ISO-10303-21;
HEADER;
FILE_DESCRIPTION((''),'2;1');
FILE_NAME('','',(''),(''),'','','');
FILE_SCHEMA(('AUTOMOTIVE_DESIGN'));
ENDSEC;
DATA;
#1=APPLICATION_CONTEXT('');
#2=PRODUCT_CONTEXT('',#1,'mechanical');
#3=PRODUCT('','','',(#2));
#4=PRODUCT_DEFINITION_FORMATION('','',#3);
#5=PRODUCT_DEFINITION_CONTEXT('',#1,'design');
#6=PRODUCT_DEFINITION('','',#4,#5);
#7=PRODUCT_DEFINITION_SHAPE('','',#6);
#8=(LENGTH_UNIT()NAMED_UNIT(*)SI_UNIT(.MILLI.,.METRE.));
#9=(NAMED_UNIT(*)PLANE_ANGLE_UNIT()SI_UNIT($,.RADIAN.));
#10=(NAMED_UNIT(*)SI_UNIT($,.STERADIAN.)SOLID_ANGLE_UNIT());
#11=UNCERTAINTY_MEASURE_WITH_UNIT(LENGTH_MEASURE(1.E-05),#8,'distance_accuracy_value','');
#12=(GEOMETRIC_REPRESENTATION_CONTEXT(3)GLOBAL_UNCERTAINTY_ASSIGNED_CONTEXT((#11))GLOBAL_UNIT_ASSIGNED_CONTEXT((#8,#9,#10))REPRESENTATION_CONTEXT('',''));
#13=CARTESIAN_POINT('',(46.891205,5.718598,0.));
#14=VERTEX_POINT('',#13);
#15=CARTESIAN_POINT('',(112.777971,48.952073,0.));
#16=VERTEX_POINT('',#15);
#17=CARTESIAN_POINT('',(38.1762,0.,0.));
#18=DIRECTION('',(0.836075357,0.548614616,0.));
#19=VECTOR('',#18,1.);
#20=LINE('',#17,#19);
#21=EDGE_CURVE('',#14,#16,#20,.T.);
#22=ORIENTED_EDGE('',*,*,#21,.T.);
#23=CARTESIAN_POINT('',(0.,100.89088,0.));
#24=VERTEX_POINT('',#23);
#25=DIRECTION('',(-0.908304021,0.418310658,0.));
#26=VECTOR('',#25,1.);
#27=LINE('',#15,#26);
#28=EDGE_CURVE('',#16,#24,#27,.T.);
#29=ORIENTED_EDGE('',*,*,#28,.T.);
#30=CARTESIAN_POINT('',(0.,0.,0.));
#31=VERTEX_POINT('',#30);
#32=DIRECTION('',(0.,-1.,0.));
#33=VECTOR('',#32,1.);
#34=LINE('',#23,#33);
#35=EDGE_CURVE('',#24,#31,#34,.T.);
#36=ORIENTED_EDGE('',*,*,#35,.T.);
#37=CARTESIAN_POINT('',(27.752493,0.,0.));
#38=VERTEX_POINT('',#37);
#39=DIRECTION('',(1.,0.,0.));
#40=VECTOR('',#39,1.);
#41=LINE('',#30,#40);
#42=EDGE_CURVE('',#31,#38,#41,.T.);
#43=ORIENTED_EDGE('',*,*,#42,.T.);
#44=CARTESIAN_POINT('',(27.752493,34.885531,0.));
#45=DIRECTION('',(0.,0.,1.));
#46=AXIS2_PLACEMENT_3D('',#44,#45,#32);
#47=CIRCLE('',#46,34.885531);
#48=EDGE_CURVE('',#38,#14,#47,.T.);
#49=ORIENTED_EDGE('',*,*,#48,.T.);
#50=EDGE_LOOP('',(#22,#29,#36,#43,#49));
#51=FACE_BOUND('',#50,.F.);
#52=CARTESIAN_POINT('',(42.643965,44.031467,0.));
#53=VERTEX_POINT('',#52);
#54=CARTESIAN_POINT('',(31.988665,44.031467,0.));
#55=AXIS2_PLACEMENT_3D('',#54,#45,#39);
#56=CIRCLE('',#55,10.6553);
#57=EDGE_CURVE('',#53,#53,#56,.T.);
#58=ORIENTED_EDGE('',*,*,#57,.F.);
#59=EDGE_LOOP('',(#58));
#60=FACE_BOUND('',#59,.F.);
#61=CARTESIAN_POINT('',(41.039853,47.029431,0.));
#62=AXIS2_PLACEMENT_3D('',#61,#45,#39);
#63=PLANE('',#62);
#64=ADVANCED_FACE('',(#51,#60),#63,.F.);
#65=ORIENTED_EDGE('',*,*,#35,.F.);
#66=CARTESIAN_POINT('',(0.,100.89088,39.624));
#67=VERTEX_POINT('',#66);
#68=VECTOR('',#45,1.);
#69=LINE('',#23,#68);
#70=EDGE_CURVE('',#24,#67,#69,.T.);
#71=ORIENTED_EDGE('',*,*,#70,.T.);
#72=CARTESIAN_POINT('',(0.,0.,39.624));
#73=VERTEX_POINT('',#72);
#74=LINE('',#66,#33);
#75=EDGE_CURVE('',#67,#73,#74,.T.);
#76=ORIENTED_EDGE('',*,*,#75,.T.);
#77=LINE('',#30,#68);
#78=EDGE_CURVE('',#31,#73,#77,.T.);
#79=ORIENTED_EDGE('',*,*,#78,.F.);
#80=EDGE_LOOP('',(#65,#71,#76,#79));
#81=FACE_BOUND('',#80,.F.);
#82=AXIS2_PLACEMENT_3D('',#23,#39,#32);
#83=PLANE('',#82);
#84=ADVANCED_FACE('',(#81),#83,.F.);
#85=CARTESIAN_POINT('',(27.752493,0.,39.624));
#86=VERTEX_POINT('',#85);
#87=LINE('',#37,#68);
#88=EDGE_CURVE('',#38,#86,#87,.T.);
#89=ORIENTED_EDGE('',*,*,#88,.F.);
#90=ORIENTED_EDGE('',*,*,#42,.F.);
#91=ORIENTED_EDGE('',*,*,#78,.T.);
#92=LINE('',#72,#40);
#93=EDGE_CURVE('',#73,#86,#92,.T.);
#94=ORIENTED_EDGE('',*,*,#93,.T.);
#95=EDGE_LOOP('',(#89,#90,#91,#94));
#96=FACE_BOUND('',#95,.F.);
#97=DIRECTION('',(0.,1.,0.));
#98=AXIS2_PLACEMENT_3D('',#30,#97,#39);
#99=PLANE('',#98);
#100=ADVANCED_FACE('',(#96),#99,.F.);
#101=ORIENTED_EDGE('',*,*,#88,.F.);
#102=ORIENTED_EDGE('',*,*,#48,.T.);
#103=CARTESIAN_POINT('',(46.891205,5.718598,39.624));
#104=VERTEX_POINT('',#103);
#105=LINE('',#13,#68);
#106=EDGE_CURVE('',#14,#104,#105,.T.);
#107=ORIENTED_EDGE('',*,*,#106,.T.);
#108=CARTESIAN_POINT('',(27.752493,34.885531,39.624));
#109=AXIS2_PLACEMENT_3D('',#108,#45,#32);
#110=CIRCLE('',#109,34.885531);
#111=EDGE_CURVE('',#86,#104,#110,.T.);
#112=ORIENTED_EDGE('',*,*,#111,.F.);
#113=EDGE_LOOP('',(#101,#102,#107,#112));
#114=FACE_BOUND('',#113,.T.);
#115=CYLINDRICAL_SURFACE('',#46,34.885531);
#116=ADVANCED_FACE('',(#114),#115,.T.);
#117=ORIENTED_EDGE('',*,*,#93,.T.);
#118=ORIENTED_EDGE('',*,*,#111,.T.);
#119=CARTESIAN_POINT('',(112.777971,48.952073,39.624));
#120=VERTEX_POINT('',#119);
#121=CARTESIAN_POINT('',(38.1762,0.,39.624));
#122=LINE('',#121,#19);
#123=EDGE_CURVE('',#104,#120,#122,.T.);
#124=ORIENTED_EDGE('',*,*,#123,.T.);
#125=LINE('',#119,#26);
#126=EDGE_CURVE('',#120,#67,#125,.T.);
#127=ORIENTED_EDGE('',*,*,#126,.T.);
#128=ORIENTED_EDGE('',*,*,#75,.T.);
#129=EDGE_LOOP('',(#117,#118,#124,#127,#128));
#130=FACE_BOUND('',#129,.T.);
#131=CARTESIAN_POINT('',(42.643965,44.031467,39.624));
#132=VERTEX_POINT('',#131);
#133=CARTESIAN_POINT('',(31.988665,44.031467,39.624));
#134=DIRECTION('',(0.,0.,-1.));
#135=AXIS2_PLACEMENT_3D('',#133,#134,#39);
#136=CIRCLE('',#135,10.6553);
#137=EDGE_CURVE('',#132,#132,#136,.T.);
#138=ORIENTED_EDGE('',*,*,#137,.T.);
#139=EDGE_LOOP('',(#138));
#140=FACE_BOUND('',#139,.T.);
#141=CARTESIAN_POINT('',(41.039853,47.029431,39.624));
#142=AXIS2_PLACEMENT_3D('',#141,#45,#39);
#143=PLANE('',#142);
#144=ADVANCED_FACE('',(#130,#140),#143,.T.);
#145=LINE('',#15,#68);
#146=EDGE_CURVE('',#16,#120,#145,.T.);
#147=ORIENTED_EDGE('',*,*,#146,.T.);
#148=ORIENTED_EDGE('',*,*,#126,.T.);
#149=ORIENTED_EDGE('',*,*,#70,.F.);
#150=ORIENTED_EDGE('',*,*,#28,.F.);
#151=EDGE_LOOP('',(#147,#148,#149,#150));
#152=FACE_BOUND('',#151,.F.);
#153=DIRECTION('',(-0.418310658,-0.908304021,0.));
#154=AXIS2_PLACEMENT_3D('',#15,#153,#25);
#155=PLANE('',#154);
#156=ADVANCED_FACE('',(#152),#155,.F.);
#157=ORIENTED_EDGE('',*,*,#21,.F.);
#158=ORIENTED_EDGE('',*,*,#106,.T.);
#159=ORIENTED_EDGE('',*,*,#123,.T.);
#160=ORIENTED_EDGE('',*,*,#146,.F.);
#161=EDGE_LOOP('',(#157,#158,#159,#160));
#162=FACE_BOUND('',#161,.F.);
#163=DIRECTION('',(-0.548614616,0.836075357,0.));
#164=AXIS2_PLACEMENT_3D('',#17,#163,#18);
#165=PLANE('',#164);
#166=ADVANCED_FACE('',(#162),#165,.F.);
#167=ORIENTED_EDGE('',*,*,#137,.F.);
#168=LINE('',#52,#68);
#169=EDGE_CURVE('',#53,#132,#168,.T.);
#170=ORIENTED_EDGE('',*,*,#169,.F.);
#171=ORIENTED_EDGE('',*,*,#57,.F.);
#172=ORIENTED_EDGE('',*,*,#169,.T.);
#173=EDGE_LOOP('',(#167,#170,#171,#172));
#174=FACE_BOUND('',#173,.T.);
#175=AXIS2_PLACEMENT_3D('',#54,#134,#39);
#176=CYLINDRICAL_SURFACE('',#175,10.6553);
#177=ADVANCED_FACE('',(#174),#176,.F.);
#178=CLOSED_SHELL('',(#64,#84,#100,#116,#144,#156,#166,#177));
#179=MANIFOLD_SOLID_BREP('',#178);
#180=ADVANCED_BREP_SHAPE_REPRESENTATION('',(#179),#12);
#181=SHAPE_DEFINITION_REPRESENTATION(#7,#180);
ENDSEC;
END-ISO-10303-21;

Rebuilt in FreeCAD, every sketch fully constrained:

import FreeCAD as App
import Part
import Sketcher
from FreeCAD import Vector
Q = App.Units.Quantity


def edges_at(feature, points):
    """Names of the edges that pass closest to the given points."""
    edges = feature.Shape.Edges
    near = lambda p: min(range(len(edges)), key=lambda i: edges[i].distToShape(Part.Vertex(*p))[0])
    return sorted({f"Edge{near(p) + 1}" for p in points})

doc = App.newDocument("Part")
body = doc.addObject("PartDesign::Body", "Body")

# Sketch on XY plane
sketch1 = doc.addObject("Sketcher::SketchObject", "Sketch")
body.addObject(sketch1)
sketch1.AttachmentSupport = (doc.XY_Plane, [""])
sketch1.MapMode = "FlatFace"
sketch1.addGeometry([
    Part.LineSegment(Vector(0, 101, 0), Vector(0, 0, 0)),
    Part.LineSegment(Vector(0, 0, 0), Vector(38, 0, 0)),
    Part.LineSegment(Vector(38, 0, 0), Vector(113, 49, 0)),
    Part.LineSegment(Vector(113, 49, 0), Vector(0, 101, 0)),
], False)
sketch1.addConstraint([
    Sketcher.Constraint("Coincident", 0, 2, 1, 1),
    Sketcher.Constraint("Coincident", 1, 2, 2, 1),
    Sketcher.Constraint("Coincident", 2, 2, 3, 1),
    Sketcher.Constraint("Coincident", 3, 2, 0, 1),
    Sketcher.Constraint("Vertical", 0),
    Sketcher.Constraint("Horizontal", 1),
    Sketcher.Constraint("Coincident", 0, 2, -1, 1),
    Sketcher.Constraint("DistanceX", 1, 1, 1, 2, Q("1.503 in")),
    Sketcher.Constraint("DistanceY", 0, 2, 0, 1, 100.89088),
    Sketcher.Constraint("Distance", 3, 124.163241),
    Sketcher.Constraint("DistanceX", -1, 1, 2, 2, 112.777971),
])
pad1 = doc.addObject("PartDesign::Pad", "Pad")
body.addObject(pad1)
pad1.Profile = sketch1
pad1.Length = Q("1.56 in")
doc.recompute()

fillet = doc.addObject("PartDesign::Fillet", "Fillet")
body.addObject(fillet)
fillet.Base = (pad1, edges_at(pad1, [(38.176, 0, 19.812)]))
fillet.Radius = 34.885531

# Sketch on XY plane
sketch2 = doc.addObject("Sketcher::SketchObject", "Sketch001")
body.addObject(sketch2)
sketch2.AttachmentSupport = (doc.XY_Plane, [""])
sketch2.MapMode = "FlatFace"
sketch2.addGeometry(Part.Circle(Vector(32, 44, 0), Vector(0, 0, 1), 11), False)
sketch2.addConstraint([
    Sketcher.Constraint("Diameter", 0, Q("0.839 in")),
    Sketcher.Constraint("DistanceX", -1, 1, 0, 3, 31.988665),
    Sketcher.Constraint("DistanceY", -1, 1, 0, 3, 44.031467),
])
pocket1 = doc.addObject("PartDesign::Pocket", "Pocket")
body.addObject(pocket1)
pocket1.Profile = sketch2
pocket1.Length = Q("3.59 in")
pocket1.Reversed = True

doc.recompute()
